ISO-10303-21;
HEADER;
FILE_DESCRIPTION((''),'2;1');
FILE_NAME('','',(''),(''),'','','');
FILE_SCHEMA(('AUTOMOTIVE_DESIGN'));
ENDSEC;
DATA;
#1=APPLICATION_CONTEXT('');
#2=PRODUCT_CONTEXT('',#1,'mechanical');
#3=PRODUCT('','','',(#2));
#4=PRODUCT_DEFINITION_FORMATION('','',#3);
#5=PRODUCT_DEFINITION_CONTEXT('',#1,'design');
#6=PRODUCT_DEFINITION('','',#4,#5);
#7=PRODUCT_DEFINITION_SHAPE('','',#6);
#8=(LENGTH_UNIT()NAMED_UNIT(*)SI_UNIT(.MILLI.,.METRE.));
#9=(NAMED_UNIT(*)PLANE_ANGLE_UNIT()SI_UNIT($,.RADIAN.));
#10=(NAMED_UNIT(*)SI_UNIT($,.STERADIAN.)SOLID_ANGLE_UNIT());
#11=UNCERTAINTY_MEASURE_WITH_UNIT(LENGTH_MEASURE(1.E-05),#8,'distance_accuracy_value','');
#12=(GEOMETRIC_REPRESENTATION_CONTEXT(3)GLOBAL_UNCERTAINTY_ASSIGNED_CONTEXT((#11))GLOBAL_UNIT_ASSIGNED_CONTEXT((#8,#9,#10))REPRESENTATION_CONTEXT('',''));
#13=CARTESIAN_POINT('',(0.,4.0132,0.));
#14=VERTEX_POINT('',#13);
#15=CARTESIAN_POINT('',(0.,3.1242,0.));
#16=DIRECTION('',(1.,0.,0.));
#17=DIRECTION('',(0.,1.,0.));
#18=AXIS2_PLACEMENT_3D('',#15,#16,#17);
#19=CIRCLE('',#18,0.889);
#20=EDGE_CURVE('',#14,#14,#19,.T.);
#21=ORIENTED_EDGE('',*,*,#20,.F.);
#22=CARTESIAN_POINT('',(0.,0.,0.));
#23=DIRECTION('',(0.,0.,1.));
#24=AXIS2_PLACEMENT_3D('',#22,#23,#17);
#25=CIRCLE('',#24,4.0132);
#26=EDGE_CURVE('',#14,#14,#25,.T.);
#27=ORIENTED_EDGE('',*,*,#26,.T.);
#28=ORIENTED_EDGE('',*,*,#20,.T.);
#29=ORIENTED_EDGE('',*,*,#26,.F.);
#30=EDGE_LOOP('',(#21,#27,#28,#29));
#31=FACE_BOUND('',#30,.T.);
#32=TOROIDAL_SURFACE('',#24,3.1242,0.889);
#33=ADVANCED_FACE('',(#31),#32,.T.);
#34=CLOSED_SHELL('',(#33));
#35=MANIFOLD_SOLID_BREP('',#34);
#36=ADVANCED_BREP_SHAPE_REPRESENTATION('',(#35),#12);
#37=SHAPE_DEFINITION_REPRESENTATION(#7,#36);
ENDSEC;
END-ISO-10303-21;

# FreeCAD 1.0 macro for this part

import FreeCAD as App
import Part
import Sketcher
Q = App.Units.Quantity

doc = App.newDocument("Part")
body = doc.addObject("PartDesign::Body", "Body")

sketch1 = doc.addObject("Sketcher::SketchObject", "Sketch")
body.addObject(sketch1)
sketch1.AttachmentSupport = (doc.YZ_Plane, [""])
sketch1.MapMode = "FlatFace"
sketch1.addGeometry(Part.Circle(App.Vector(3.1242, 0, 0), App.Vector(0, 0, 1), 0.889), False)
sketch1.addConstraint(Sketcher.Constraint("PointOnObject", 0, 3, -1))
sketch1.addConstraint(Sketcher.Constraint("Diameter", 0, Q("0.07 in")))
sketch1.addConstraint(Sketcher.Constraint("DistanceX", -1, 1, 0, 3, Q("0.123 in")))
revolution = doc.addObject("PartDesign::Revolution", "Revolution")
body.addObject(revolution)
revolution.Profile = sketch1
revolution.ReferenceAxis = (sketch1, ["V_Axis"])
revolution.Angle = 360

doc.recompute()
